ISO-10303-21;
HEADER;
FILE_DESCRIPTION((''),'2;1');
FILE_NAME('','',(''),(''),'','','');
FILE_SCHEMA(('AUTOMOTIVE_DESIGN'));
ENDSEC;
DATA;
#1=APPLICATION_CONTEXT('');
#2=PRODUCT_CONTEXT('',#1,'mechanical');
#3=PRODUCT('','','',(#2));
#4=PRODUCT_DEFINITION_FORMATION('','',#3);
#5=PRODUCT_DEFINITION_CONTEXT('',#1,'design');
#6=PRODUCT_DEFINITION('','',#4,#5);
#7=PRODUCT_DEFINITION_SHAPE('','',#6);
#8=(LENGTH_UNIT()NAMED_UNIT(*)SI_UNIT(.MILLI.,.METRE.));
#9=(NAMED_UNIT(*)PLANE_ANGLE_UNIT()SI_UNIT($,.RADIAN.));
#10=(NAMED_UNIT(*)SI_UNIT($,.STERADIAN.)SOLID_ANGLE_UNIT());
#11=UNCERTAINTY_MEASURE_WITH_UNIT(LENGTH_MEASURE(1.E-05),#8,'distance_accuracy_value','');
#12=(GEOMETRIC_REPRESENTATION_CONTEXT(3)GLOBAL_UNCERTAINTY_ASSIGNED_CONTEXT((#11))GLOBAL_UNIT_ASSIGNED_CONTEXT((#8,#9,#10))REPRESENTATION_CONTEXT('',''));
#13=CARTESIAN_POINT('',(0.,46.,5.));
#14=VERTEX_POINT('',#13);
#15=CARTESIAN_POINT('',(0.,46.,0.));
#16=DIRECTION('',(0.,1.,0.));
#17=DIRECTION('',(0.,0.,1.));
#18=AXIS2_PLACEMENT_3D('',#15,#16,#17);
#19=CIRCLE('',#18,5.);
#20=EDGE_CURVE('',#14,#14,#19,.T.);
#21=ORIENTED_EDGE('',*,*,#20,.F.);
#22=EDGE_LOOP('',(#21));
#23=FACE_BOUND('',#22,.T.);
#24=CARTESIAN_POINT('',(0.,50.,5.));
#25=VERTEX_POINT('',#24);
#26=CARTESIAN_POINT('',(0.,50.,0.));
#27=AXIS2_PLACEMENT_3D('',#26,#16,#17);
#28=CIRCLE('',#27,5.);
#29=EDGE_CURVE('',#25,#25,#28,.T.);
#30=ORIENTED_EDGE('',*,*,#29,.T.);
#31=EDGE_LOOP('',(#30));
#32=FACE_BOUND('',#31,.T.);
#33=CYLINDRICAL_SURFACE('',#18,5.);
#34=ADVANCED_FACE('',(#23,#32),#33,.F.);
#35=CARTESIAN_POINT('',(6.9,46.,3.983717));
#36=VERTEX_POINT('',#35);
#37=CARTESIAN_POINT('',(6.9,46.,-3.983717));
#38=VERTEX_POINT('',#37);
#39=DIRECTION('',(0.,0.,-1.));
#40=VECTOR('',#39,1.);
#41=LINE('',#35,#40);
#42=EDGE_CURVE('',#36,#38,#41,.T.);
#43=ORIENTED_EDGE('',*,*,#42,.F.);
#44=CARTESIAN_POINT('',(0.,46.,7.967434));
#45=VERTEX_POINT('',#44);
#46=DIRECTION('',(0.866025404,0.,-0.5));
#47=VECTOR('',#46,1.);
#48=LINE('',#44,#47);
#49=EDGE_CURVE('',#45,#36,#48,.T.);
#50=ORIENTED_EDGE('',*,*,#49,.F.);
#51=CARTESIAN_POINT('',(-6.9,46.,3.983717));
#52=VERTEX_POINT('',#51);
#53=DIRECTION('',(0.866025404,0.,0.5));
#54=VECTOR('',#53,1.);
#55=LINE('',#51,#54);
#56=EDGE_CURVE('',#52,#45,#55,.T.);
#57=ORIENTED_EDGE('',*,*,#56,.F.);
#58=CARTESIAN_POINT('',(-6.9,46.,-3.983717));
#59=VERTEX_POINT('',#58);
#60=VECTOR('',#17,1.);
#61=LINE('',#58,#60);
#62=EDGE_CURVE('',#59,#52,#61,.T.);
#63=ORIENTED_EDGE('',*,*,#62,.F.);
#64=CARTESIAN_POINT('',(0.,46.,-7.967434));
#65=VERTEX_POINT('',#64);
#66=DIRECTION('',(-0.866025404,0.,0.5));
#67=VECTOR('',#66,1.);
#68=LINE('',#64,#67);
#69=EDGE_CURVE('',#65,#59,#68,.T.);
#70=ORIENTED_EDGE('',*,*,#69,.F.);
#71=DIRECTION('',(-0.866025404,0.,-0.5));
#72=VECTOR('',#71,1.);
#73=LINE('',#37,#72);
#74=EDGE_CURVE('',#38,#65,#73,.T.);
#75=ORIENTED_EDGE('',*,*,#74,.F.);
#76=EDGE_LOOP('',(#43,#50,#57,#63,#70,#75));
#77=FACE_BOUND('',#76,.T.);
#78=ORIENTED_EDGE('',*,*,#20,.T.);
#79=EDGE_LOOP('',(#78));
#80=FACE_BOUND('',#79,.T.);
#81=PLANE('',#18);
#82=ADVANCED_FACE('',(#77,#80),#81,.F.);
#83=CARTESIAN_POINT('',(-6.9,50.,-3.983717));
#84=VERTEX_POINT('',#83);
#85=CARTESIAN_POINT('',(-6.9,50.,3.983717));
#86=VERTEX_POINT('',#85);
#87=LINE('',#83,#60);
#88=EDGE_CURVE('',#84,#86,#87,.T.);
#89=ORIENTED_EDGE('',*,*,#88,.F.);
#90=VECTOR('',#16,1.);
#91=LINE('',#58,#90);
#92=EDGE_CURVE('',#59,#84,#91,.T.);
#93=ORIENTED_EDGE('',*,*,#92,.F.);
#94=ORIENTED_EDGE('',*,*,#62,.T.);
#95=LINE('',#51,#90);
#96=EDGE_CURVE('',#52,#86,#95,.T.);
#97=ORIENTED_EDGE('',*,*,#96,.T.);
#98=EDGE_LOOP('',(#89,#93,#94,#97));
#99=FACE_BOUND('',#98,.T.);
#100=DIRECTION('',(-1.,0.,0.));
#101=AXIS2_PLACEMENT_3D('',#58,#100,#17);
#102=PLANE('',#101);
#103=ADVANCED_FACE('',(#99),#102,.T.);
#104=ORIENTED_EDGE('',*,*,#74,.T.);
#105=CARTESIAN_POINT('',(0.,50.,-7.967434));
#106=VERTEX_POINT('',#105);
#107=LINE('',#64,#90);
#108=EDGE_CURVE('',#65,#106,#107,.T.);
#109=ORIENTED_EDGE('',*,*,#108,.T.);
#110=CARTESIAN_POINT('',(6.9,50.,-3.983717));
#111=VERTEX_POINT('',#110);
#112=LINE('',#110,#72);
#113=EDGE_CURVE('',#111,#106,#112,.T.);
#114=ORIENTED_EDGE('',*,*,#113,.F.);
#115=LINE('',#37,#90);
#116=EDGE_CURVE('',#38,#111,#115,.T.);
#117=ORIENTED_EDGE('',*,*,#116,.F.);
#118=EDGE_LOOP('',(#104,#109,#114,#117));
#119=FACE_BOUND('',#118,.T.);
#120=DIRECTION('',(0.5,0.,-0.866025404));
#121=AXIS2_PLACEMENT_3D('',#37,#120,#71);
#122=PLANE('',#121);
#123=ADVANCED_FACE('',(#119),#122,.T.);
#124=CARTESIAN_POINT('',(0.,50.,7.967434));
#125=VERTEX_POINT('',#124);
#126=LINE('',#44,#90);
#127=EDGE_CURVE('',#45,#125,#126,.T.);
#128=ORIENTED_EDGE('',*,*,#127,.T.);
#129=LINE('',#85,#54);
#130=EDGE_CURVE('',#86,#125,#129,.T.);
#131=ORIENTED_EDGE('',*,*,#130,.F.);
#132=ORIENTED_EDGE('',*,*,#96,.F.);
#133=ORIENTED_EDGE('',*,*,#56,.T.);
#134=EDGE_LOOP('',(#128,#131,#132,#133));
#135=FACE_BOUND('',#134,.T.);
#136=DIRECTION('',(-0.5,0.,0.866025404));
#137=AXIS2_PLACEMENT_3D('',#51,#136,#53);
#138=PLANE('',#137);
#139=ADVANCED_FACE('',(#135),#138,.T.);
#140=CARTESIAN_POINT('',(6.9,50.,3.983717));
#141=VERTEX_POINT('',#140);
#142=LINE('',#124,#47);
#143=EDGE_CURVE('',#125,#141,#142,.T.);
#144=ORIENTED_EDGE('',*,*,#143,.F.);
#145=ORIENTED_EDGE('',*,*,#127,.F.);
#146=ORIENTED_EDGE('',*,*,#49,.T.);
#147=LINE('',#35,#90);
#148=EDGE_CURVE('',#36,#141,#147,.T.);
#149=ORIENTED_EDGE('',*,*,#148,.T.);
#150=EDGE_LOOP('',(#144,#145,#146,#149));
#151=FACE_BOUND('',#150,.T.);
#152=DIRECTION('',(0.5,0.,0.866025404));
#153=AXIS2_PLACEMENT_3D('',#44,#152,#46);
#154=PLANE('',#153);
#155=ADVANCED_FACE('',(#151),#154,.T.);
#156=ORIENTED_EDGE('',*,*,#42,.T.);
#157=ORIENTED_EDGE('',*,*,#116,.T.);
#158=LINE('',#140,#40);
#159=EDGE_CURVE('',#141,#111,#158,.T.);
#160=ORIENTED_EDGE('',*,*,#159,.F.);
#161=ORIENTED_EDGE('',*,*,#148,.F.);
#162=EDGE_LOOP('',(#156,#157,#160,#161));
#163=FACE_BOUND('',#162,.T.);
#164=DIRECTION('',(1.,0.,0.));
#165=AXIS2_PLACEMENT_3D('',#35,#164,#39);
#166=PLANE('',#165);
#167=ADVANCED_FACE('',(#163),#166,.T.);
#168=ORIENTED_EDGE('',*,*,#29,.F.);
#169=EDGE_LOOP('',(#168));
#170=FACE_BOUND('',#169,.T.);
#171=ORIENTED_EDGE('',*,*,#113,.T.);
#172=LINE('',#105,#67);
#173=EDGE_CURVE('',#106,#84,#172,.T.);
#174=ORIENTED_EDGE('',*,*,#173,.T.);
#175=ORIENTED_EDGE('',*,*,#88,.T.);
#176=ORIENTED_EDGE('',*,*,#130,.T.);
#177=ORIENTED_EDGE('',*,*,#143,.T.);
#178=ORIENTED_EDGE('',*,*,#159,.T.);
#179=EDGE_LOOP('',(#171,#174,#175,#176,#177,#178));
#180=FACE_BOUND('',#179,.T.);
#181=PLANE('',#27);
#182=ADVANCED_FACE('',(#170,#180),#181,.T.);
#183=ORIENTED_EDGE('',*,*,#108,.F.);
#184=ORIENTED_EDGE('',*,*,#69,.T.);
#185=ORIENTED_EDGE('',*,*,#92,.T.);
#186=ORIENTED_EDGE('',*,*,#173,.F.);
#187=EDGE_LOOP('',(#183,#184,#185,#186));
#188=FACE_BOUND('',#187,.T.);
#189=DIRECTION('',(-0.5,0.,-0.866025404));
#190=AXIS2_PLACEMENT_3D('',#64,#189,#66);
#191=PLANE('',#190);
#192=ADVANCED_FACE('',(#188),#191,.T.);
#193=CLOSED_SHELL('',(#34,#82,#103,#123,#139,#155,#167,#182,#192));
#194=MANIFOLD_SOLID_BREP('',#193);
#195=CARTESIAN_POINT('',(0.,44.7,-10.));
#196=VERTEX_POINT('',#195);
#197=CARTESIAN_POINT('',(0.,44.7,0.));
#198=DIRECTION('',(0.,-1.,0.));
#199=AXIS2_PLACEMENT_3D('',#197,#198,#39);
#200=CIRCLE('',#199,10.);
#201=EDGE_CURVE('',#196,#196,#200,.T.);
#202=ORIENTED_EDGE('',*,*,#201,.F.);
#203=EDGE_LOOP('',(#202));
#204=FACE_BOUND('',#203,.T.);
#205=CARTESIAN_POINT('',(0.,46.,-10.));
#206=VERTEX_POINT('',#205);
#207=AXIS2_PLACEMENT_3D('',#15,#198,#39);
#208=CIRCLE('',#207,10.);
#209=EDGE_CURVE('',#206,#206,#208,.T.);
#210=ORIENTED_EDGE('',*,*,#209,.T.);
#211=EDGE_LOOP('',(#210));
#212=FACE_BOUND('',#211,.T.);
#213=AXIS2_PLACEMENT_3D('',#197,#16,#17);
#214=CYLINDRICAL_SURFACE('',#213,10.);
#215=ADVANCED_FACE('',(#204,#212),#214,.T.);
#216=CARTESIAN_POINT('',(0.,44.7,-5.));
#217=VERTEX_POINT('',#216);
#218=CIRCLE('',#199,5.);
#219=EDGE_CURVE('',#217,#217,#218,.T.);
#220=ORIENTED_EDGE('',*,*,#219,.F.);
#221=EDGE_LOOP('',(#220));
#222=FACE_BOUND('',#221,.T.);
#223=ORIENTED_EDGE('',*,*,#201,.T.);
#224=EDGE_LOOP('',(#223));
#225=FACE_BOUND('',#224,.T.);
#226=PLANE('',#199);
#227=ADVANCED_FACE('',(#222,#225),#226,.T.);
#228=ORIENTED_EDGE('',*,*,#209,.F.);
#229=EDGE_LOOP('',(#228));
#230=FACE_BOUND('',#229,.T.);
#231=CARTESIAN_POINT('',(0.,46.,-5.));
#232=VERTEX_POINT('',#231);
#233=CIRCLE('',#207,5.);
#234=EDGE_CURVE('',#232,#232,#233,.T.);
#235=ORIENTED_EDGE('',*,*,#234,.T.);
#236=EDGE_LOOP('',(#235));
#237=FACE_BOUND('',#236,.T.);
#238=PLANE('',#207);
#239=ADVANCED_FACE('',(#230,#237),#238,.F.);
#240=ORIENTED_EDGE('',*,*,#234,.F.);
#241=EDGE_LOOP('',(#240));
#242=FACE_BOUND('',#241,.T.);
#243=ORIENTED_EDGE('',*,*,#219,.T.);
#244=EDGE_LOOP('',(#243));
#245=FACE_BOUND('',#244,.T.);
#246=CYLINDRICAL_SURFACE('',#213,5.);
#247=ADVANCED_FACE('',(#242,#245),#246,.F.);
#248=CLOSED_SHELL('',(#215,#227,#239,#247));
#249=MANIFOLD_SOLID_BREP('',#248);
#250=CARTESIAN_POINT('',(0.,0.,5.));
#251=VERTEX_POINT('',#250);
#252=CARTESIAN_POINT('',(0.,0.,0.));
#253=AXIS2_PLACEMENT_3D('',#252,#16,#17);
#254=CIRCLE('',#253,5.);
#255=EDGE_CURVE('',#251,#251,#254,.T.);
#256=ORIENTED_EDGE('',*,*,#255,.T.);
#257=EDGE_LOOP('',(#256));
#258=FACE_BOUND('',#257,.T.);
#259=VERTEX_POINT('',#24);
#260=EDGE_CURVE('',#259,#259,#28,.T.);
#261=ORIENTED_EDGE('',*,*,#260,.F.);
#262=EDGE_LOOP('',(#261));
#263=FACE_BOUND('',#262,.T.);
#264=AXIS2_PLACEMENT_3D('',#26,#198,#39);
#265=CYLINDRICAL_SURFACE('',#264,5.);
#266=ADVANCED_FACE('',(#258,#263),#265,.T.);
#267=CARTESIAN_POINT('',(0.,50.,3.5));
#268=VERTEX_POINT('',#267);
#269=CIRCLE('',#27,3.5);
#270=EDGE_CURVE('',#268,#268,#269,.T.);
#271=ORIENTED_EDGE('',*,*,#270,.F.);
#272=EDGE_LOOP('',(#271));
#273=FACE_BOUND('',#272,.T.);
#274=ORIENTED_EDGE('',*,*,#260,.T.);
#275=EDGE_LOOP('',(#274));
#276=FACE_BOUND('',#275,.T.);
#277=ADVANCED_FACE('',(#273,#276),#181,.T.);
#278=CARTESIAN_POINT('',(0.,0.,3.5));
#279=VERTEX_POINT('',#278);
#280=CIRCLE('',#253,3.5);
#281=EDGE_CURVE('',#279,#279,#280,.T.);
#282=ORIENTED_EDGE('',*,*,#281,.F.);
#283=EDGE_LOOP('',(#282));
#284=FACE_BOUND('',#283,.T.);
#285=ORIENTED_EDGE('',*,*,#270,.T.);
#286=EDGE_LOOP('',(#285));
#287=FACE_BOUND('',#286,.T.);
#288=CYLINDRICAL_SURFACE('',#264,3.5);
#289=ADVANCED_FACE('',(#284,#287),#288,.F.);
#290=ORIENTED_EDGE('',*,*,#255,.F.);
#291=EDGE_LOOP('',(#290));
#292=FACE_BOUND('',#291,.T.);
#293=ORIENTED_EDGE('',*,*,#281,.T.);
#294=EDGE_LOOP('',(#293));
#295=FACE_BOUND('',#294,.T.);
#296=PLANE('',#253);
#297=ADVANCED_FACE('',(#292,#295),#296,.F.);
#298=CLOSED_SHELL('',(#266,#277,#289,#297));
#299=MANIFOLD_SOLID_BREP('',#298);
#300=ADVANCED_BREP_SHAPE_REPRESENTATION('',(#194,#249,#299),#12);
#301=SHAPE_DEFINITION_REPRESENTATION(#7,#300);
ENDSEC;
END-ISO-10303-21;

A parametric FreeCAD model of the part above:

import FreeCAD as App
import Part
import Sketcher
from FreeCAD import Vector
Q = App.Units.Quantity


def add_polygon(sketch, points):
    """Adds a closed chain of lines whose ends are joined by coincident constraints."""
    first, n = sketch.GeometryCount, len(points)
    for a, b in zip(points, points[1:] + points[:1]):
        sketch.addGeometry(Part.LineSegment(App.Vector(*a, 0), App.Vector(*b, 0)), False)
    for i in range(n):
        sketch.addConstraint(Sketcher.Constraint("Coincident", first + i, 2, first + (i + 1) % n, 1))

doc = App.newDocument("Part")
body = doc.addObject("PartDesign::Body", "Body")

sketch1 = body.newObject("Sketcher::SketchObject", "Sketch")
sketch1.AttachmentSupport = (doc.getObject("XZ_Plane"), [""])
sketch1.MapMode = "FlatFace"
sketch1.addGeometry([
    Part.Circle(Vector(0, 0, 0), Vector(0, 0, 1), 5),
    Part.Circle(Vector(0, 0, 0), Vector(0, 0, 1), 3.5),
], False)
sketch1.addConstraint([
    Sketcher.Constraint("Coincident", 0, 3, -1, 1),
    Sketcher.Constraint("Coincident", 1, 3, -1, 1),
    Sketcher.Constraint("Diameter", 0, Q("10 mm")),
    Sketcher.Constraint("Diameter", 1, Q("7 mm")),
])
pad1 = body.newObject("PartDesign::Pad", "Pad")
pad1.Profile = sketch1
pad1.Length = 50
pad1.Reversed = True
body2 = doc.addObject("PartDesign::Body", "Body001")

sketch2 = body2.newObject("Sketcher::SketchObject", "Sketch001")
sketch2.AttachmentSupport = (doc.getObject("XZ_Plane001"), [""])
sketch2.MapMode = "FlatFace"
sketch2.AttachmentOffset = App.Placement(Vector(0, 0, -50), App.Rotation())
add_polygon(sketch2, [(0, -8), (-7, -4), (-7, 4), (0, 8), (7, 4), (7, -4)])
sketch2.addGeometry(Part.Circle(Vector(0, 0, 0), Vector(0, 0, 1), 5), False)
sketch2.addConstraint([
    Sketcher.Constraint("Vertical", 1),
    Sketcher.Constraint("Vertical", 4),
    Sketcher.Constraint("Coincident", 6, 3, -1, 1),
    Sketcher.Constraint("Symmetric", 0, 2, 3, 2, -1, 1),
    Sketcher.Constraint("Symmetric", 2, 2, 5, 2, -1, 1),
    Sketcher.Constraint("PointOnObject", 2, 2, -2),
    Sketcher.Constraint("Parallel", 2, 5),
    Sketcher.Constraint("Horizontal", 1, 2, 3, 2),
    Sketcher.Constraint("Diameter", 6, Q("10 mm")),
    Sketcher.Constraint("Angle", 0, Q("150 deg")),
    Sketcher.Constraint("DistanceX", 0, 2, -1, 1, Q("6.9 mm")),
    Sketcher.Constraint("DistanceY", 1, 1, 1, 2, Q("7.967434 mm")),
])
pad2 = body2.newObject("PartDesign::Pad", "Pad001")
pad2.Profile = sketch2
pad2.Length = 4
body3 = doc.addObject("PartDesign::Body", "Body002")

sketch3 = body3.newObject("Sketcher::SketchObject", "Sketch002")
sketch3.AttachmentSupport = (doc.getObject("XZ_Plane002"), [""])
sketch3.MapMode = "FlatFace"
sketch3.AttachmentOffset = App.Placement(Vector(0, 0, -46), App.Rotation())
sketch3.addGeometry([
    Part.Circle(Vector(0, 0, 0), Vector(0, 0, 1), 10),
    Part.Circle(Vector(0, 0, 0), Vector(0, 0, 1), 5),
], False)
sketch3.addConstraint([
    Sketcher.Constraint("Coincident", 0, 3, -1, 1),
    Sketcher.Constraint("Coincident", 1, 3, -1, 1),
    Sketcher.Constraint("Diameter", 0, Q("20 mm")),
    Sketcher.Constraint("Diameter", 1, Q("10 mm")),
])
pad3 = body3.newObject("PartDesign::Pad", "Pad002")
pad3.Profile = sketch3
pad3.Length = 1.3

doc.recompute()
